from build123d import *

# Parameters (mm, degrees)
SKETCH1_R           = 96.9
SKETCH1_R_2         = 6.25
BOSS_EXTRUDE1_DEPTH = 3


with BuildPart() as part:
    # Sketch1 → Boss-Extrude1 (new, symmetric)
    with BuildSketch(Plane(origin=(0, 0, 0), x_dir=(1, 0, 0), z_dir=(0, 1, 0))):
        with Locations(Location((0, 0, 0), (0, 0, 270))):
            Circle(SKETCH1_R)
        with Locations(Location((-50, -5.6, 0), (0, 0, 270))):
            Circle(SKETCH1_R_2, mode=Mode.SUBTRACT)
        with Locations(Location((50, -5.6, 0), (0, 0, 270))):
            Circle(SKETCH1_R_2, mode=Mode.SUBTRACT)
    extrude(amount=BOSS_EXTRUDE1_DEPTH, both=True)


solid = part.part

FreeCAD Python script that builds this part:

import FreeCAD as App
import Part
import Sketcher
Q = App.Units.Quantity

doc = App.newDocument("Part")
body = doc.addObject("PartDesign::Body", "Body")

# Sketch on XZ plane
sketch1 = body.newObject("Sketcher::SketchObject", "Sketch")
sketch1.AttachmentSupport = (doc.getObject("XZ_Plane"), [""])
sketch1.MapMode = "FlatFace"
sketch1.addGeometry([
    Part.Circle(App.Vector(0, 0, 0), App.Vector(0, 0, 1), 97),
    Part.Circle(App.Vector(-50, 6, 0), App.Vector(0, 0, 1), 6),
    Part.Circle(App.Vector(50, 6, 0), App.Vector(0, 0, 1), 6),
], False)
sketch1.addConstraint([
    Sketcher.Constraint("Coincident", 0, 3, -1, 1),
    Sketcher.Constraint("Equal", 1, 2),
    Sketcher.Constraint("Symmetric", 1, 3, 2, 3, -2),
    Sketcher.Constraint("Diameter", 0, Q("193.8 mm")),
    Sketcher.Constraint("Diameter", 1, Q("12.5 mm")),
    Sketcher.Constraint("DistanceX", 1, 3, -1, 1, Q("50 mm")),
    Sketcher.Constraint("DistanceY", -1, 1, 1, 3, Q("5.6 mm")),
])
pad1 = body.newObject("PartDesign::Pad", "Pad")
pad1.Profile = sketch1
pad1.Length = 6
pad1.Midplane = True

doc.recompute()
